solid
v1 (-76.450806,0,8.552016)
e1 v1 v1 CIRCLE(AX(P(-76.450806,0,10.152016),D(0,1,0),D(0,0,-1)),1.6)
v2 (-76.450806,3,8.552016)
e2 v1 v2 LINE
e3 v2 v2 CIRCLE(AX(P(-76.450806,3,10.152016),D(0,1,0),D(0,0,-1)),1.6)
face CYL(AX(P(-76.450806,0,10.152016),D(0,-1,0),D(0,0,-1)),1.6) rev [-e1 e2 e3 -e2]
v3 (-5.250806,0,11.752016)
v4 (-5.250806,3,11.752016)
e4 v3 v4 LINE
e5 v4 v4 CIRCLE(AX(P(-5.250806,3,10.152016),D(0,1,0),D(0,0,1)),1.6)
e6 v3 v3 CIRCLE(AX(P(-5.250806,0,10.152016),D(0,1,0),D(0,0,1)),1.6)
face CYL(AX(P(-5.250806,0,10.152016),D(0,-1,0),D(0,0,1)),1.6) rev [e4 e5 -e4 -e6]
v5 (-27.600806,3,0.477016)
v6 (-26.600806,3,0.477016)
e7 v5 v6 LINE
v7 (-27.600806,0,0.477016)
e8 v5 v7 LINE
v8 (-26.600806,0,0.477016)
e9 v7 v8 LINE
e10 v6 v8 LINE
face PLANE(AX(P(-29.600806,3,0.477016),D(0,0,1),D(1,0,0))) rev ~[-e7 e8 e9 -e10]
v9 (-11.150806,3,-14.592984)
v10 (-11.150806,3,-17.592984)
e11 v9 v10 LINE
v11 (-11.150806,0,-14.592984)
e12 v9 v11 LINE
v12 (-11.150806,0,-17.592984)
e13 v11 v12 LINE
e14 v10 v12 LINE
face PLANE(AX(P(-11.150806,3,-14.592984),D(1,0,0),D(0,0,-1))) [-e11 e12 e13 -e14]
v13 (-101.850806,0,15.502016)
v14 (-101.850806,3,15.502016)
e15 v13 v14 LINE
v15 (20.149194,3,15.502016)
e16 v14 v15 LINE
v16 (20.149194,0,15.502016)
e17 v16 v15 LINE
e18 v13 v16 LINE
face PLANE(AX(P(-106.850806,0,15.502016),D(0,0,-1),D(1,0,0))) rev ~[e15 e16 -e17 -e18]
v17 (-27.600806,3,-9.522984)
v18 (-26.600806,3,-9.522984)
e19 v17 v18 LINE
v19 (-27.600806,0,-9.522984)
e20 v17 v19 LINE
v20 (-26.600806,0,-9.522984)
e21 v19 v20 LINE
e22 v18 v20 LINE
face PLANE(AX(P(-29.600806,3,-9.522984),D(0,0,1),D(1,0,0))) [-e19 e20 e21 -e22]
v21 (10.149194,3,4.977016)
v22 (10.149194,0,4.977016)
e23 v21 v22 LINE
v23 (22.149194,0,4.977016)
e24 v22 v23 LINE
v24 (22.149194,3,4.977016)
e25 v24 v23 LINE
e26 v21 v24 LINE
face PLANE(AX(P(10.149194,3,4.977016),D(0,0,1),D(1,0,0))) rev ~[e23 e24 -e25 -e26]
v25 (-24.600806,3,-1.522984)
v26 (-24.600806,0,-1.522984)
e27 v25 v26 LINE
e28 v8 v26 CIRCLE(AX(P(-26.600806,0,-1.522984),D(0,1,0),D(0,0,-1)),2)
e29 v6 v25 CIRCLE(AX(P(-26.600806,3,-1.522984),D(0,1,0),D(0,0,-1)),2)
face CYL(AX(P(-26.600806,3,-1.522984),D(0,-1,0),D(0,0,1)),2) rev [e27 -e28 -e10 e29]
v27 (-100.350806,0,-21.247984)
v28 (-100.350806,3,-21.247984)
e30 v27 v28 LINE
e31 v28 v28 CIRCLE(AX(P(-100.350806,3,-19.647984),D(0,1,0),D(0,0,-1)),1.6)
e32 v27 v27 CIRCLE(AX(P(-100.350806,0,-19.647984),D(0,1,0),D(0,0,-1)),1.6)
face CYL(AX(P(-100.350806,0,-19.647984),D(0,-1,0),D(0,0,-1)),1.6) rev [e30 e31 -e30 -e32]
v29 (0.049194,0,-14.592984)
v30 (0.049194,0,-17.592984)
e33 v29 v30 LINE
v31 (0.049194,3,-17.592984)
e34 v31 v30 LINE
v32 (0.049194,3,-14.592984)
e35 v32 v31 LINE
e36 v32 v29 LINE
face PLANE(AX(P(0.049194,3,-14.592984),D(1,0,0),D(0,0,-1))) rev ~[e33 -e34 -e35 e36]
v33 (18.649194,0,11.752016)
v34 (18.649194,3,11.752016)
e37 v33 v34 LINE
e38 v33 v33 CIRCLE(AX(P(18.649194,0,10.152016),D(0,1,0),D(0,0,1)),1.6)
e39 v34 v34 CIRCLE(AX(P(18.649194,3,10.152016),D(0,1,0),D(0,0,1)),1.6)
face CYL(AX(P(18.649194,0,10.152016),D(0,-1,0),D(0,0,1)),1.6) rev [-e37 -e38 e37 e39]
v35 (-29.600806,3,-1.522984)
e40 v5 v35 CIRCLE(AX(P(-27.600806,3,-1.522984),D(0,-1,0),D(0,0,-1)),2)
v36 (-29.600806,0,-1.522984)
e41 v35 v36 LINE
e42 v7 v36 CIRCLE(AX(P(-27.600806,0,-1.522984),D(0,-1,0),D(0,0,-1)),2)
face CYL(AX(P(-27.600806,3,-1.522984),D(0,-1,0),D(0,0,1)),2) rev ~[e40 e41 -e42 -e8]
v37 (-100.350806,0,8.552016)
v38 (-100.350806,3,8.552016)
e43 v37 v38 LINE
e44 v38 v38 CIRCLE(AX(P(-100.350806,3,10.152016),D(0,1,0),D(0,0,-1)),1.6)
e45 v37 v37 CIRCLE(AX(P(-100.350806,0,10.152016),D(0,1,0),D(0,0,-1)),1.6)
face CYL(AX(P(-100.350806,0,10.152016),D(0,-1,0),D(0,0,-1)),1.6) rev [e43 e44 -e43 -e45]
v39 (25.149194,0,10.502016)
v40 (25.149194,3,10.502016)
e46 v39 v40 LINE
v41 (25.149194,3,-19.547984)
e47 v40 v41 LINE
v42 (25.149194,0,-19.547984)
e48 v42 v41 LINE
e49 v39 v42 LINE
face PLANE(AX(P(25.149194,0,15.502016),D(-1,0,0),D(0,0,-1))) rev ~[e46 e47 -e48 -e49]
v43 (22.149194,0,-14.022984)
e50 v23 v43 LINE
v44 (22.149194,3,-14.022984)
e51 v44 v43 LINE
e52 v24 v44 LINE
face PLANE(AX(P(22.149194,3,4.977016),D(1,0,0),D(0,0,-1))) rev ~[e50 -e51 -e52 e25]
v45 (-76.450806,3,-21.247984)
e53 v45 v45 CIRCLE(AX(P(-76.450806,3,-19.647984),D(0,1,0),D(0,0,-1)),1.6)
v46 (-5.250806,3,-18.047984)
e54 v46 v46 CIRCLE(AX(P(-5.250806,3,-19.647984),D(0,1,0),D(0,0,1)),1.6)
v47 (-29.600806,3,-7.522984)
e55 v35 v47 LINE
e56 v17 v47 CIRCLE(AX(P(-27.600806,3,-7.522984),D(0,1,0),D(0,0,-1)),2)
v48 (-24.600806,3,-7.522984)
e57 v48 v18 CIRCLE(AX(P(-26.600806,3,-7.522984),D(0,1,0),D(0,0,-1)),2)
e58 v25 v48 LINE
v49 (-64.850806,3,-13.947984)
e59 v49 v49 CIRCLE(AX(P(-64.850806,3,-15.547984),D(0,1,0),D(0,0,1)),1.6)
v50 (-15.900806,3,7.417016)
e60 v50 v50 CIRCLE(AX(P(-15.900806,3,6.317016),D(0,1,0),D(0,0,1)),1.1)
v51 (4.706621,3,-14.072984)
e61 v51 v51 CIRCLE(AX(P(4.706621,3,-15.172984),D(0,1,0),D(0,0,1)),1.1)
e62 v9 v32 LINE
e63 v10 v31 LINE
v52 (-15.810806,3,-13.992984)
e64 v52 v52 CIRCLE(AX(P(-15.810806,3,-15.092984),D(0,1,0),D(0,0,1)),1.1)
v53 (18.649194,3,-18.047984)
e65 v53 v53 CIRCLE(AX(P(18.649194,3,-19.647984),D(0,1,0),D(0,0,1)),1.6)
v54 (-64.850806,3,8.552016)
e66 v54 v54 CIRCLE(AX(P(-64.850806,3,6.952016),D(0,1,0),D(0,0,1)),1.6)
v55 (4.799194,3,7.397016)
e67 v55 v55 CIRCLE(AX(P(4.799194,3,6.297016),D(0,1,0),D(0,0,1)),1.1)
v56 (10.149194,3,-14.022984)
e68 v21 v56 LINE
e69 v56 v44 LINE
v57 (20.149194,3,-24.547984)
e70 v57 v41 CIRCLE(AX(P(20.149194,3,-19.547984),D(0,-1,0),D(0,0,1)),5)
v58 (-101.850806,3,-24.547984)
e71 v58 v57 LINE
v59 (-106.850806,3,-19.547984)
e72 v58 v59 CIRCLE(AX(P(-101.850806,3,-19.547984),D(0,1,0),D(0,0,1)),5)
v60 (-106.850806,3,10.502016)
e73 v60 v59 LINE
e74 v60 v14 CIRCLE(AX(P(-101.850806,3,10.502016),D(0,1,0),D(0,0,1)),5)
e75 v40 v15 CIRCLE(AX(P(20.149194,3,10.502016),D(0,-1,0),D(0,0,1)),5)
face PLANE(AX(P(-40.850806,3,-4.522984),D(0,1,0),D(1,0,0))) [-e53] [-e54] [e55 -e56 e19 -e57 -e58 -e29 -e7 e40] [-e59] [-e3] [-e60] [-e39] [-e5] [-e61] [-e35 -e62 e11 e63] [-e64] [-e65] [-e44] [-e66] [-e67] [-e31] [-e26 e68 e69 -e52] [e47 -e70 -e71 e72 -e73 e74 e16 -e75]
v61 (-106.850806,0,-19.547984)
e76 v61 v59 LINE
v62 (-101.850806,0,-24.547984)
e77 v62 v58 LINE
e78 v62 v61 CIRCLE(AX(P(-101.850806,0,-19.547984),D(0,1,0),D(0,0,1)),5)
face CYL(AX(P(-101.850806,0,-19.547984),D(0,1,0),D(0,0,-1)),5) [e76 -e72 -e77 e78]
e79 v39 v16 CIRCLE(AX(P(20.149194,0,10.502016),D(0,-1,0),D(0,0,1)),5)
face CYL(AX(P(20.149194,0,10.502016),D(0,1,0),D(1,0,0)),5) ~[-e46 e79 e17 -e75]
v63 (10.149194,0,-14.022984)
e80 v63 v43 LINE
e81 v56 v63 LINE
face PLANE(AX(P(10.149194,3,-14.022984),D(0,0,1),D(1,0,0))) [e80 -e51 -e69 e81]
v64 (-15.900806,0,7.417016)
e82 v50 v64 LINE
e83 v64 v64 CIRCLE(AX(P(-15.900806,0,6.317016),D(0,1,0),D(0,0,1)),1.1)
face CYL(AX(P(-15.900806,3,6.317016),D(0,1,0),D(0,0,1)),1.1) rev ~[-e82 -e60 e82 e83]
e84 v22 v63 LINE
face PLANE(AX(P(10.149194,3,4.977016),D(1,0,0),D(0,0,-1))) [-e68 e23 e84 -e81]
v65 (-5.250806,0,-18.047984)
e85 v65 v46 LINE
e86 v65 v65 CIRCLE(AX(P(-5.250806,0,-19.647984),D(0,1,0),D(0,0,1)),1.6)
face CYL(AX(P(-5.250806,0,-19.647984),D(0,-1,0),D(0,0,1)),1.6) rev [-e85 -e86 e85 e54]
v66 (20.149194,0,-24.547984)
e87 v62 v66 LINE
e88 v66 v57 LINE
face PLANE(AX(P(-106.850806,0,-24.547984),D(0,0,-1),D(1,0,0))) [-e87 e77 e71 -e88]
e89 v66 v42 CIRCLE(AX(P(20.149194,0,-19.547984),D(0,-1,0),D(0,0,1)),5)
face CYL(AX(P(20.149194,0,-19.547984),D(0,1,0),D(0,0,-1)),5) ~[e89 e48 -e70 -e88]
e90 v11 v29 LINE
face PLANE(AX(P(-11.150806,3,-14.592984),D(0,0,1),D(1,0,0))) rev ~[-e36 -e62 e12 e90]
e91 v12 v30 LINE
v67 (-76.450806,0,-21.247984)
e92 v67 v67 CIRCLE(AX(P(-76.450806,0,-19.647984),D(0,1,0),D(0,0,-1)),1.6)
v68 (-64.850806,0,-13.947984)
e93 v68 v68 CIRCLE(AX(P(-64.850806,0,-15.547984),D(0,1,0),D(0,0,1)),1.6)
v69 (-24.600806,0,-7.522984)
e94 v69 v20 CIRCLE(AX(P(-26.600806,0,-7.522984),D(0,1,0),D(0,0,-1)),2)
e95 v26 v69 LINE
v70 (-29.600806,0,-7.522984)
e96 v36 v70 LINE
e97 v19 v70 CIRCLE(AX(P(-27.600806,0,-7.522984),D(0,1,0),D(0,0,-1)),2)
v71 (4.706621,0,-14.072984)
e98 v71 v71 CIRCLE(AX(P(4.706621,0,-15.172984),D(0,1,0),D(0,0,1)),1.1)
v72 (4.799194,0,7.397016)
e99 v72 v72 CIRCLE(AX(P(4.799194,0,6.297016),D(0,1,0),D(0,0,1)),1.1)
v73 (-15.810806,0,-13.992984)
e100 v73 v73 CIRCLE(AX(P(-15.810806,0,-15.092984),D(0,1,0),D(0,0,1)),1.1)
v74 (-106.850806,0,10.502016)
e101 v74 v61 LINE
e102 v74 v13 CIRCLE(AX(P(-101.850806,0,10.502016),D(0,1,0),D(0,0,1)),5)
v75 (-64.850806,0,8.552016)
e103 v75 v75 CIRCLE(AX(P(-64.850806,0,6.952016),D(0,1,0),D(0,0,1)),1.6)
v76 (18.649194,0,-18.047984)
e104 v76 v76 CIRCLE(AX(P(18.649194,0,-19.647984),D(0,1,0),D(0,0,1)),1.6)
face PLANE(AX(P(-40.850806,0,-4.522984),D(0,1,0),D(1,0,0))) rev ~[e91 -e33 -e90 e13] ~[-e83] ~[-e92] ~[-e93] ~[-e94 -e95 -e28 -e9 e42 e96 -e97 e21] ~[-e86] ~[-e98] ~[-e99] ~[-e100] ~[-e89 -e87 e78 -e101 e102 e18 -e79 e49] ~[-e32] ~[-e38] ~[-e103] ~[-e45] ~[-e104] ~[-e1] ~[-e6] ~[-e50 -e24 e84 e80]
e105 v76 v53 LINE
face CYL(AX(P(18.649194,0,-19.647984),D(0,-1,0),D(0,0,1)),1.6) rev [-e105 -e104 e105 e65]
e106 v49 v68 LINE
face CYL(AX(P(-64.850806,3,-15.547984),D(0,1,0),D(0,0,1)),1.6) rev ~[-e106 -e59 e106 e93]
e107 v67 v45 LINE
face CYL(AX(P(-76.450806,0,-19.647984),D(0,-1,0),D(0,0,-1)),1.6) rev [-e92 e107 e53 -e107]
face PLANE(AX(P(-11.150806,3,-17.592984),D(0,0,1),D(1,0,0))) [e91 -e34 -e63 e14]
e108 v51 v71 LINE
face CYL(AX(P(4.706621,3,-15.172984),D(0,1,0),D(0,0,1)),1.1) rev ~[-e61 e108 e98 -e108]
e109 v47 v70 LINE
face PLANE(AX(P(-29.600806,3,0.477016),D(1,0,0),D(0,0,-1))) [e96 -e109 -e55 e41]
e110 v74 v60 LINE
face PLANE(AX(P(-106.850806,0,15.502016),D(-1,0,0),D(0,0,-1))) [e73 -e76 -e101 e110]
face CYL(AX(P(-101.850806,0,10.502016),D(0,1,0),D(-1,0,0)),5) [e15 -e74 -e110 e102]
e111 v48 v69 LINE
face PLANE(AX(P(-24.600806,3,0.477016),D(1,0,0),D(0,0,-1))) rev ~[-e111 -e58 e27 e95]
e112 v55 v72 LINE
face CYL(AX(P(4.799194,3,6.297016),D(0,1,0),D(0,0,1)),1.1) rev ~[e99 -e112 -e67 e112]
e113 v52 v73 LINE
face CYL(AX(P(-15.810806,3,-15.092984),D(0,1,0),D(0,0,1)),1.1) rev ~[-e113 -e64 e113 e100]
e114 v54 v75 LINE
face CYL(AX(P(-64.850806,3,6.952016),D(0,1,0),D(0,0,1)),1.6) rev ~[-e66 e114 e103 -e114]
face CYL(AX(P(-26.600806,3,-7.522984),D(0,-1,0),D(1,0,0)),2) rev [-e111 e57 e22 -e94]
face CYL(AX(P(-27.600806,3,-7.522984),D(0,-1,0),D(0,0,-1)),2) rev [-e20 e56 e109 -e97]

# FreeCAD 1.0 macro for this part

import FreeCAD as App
import Part
import Sketcher


def edges_at(feature, points):
    """Names of the edges that pass closest to the given points."""
    edges = feature.Shape.Edges
    near = lambda p: min(range(len(edges)), key=lambda i: edges[i].distToShape(Part.Vertex(*p))[0])
    return sorted({f"Edge{near(p) + 1}" for p in points})


def add_polygon(sketch, points):
    """Adds a closed chain of lines whose ends are joined by coincident constraints."""
    first, n = sketch.GeometryCount, len(points)
    for a, b in zip(points, points[1:] + points[:1]):
        sketch.addGeometry(Part.LineSegment(App.Vector(*a, 0), App.Vector(*b, 0)), False)
    for i in range(n):
        sketch.addConstraint(Sketcher.Constraint("Coincident", first + i, 2, first + (i + 1) % n, 1))

doc = App.newDocument("Part")
body = doc.addObject("PartDesign::Body", "Body")

# Sketch on XZ plane
sketch1 = doc.addObject("Sketcher::SketchObject", "Sketch")
body.addObject(sketch1)
sketch1.AttachmentSupport = (doc.XZ_Plane, [""])
sketch1.MapMode = "FlatFace"
add_polygon(sketch1, [(-106.850806, -24.547984), (-106.850806, 15.502016), (25.149194, 15.502016), (25.149194, -24.547984)])  # lines 0-3
sketch1.addGeometry(Part.Circle(App.Vector(-100.350806, 10.152016, 0), App.Vector(0, 0, 1), 1.6), False)  # 4
sketch1.addGeometry(Part.Circle(App.Vector(-76.450806, 10.152016, 0), App.Vector(0, 0, 1), 1.6), False)  # 5
sketch1.addGeometry(Part.Circle(App.Vector(-5.250806, 10.152016, 0), App.Vector(0, 0, 1), 1.6), False)  # 6
sketch1.addGeometry(Part.Circle(App.Vector(18.649194, 10.152016, 0), App.Vector(0, 0, 1), 1.6), False)  # 7
sketch1.addGeometry(Part.Circle(App.Vector(-100.350806, -19.647984, 0), App.Vector(0, 0, 1), 1.6), False)  # 8
sketch1.addGeometry(Part.Circle(App.Vector(-76.450806, -19.647984, 0), App.Vector(0, 0, 1), 1.6), False)  # 9
sketch1.addGeometry(Part.Circle(App.Vector(-5.250806, -19.647984, 0), App.Vector(0, 0, 1), 1.6), False)  # 10
sketch1.addGeometry(Part.Circle(App.Vector(18.649194, -19.647984, 0), App.Vector(0, 0, 1), 1.6), False)  # 11
sketch1.addConstraint([
    Sketcher.Constraint("Vertical", 0),
    Sketcher.Constraint("Horizontal", 1),
    Sketcher.Constraint("Vertical", 2),
    Sketcher.Constraint("Horizontal", 3),
    Sketcher.Constraint("Equal", 4, 5),
    Sketcher.Constraint("Equal", 5, 6),
    Sketcher.Constraint("Equal", 6, 7),
    Sketcher.Constraint("Equal", 7, 8),
    Sketcher.Constraint("Equal", 8, 9),
    Sketcher.Constraint("Equal", 9, 10),
    Sketcher.Constraint("Equal", 10, 11),
    Sketcher.Constraint("Horizontal", 4, 3, 5, 3),
    Sketcher.Constraint("Horizontal", 5, 3, 6, 3),
    Sketcher.Constraint("Horizontal", 6, 3, 7, 3),
    Sketcher.Constraint("Horizontal", 8, 3, 9, 3),
    Sketcher.Constraint("Horizontal", 9, 3, 10, 3),
    Sketcher.Constraint("Horizontal", 10, 3, 11, 3),
    Sketcher.Constraint("Vertical", 4, 3, 8, 3),
    Sketcher.Constraint("Vertical", 5, 3, 9, 3),
    Sketcher.Constraint("Vertical", 6, 3, 10, 3),
    Sketcher.Constraint("Vertical", 7, 3, 11, 3),
    Sketcher.Constraint("Diameter", 4, 3.2),
    Sketcher.Constraint("DistanceX", 1, 1, 1, 2, 132.0),
    Sketcher.Constraint("DistanceX", 4, 3, 7, 3, 119.0),
    Sketcher.Constraint("DistanceY", 0, 1, 0, 2, 40.05),
    Sketcher.Constraint("DistanceX", 4, 3, 5, 3, 23.9),
    Sketcher.Constraint("DistanceX", 5, 3, 6, 3, 71.2),
    Sketcher.Constraint("DistanceY", 8, 3, 4, 3, 29.8),
    Sketcher.Constraint("DistanceX", 0, 2, 4, 3, 6.5),
    Sketcher.Constraint("DistanceY", 2, 2, 11, 3, 4.9),
    Sketcher.Constraint("DistanceX", 4, 3, -1, 1, 100.350806),
    Sketcher.Constraint("DistanceY", -1, 1, 4, 3, 10.152016),
])
pad1 = doc.addObject("PartDesign::Pad", "Pad")
body.addObject(pad1)
pad1.Profile = sketch1
pad1.Length = 3
pad1.Reversed = True
doc.recompute()

fillet = doc.addObject("PartDesign::Fillet", "Fillet")
body.addObject(fillet)
fillet.Base = (pad1, edges_at(pad1, [(25.149, 1.5, -24.548)]))
fillet.Radius = 5
doc.recompute()

fillet2 = doc.addObject("PartDesign::Fillet", "Fillet001")
body.addObject(fillet2)
fillet2.Base = (fillet, edges_at(fillet, [(25.149, 1.5, 15.502), (-106.851, 1.5, 15.502), (-106.851, 1.5, -24.548)]))
fillet2.Radius = 5

# Sketch on XZ plane
sketch2 = doc.addObject("Sketcher::SketchObject", "Sketch001")
body.addObject(sketch2)
sketch2.AttachmentSupport = (doc.XZ_Plane, [""])
sketch2.MapMode = "FlatFace"
sketch2.AttachmentOffset = App.Placement(App.Vector(0, 0, -3), App.Rotation())
sketch2.addGeometry(Part.Circle(App.Vector(4.706621, -15.172984, 0), App.Vector(0, 0, 1), 1.1), False)  # 0
sketch2.addGeometry(Part.Circle(App.Vector(4.799194, 6.297016, 0), App.Vector(0, 0, 1), 1.1), False)  # 1
sketch2.addGeometry(Part.Circle(App.Vector(-15.810806, -15.092984, 0), App.Vector(0, 0, 1), 1.1), False)  # 2
sketch2.addGeometry(Part.Circle(App.Vector(-15.900806, 6.317016, 0), App.Vector(0, 0, 1), 1.1), False)  # 3
add_polygon(sketch2, [(10.149194, -14.022984), (10.149194, 4.977016), (22.149194, 4.977016), (22.149194, -14.022984)])  # lines 4-7
add_polygon(sketch2, [(-11.150806, -17.592984), (-11.150806, -14.592984), (0.049194, -14.592984), (0.049194, -17.592984)])  # lines 8-11
sketch2.addConstraint([
    Sketcher.Constraint("Vertical", 4),
    Sketcher.Constraint("Horizontal", 5),
    Sketcher.Constraint("Vertical", 6),
    Sketcher.Constraint("Horizontal", 7),
    Sketcher.Constraint("Vertical", 8),
    Sketcher.Constraint("Horizontal", 9),
    Sketcher.Constraint("Vertical", 10),
    Sketcher.Constraint("Horizontal", 11),
    Sketcher.Constraint("Equal", 0, 1),
    Sketcher.Constraint("Equal", 1, 2),
    Sketcher.Constraint("Equal", 2, 3),
    Sketcher.Constraint("Diameter", 0, 2.2),
    Sketcher.Constraint("DistanceX", 5, 1, 5, 2, 12.0),
    Sketcher.Constraint("DistanceY", 4, 1, 4, 2, 19.0),
    Sketcher.Constraint("DistanceY", 8, 1, 8, 2, 3.0),
    Sketcher.Constraint("DistanceX", 9, 1, 9, 2, 11.2),
    Sketcher.Constraint("DistanceX", 3, 3, 1, 3, 20.7),
    Sketcher.Constraint("DistanceY", 2, 3, 8, 2, 0.5),
    Sketcher.Constraint("DistanceX", 8, 2, 7, 2, 21.3),
    Sketcher.Constraint("DistanceY", 0, 3, 1, 3, 21.47),
    Sketcher.Constraint("DistanceY", 0, 3, 2, 3, 0.08),
    Sketcher.Constraint("DistanceX", 2, 3, 1, 3, 20.61),
    Sketcher.Constraint("DistanceY", 1, 3, 3, 3, 0.02),
    Sketcher.Constraint("DistanceX", 1, 3, 4, 2, 5.35),
    Sketcher.Constraint("DistanceY", 4, 2, 1, 3, 1.32),
    Sketcher.Constraint("DistanceX", -1, 1, 0, 3, 4.706621),
    Sketcher.Constraint("DistanceY", 0, 3, -1, 1, 15.172984),
    Sketcher.Constraint("DistanceX", -1, 1, 1, 3, 4.799194),
])
pocket1 = doc.addObject("PartDesign::Pocket", "Pocket")
body.addObject(pocket1)
pocket1.Profile = sketch2
pocket1.Length = 10
pocket1.Reversed = True

# Sketch on XZ plane
sketch3 = doc.addObject("Sketcher::SketchObject", "Sketch002")
body.addObject(sketch3)
sketch3.AttachmentSupport = (doc.XZ_Plane, [""])
sketch3.MapMode = "FlatFace"
sketch3.AttachmentOffset = App.Placement(App.Vector(0, 0, -3), App.Rotation())
sketch3.addGeometry(Part.Circle(App.Vector(-64.850806, -15.547984, 0), App.Vector(0, 0, 1), 1.6), False)  # 0
sketch3.addGeometry(Part.Circle(App.Vector(-64.850806, 6.952016, 0), App.Vector(0, 0, 1), 1.6), False)  # 1
add_polygon(sketch3, [(-29.600806, -9.522984), (-29.600806, 0.477016), (-24.600806, 0.477016), (-24.600806, -9.522984)])  # lines 2-5
sketch3.addConstraint([
    Sketcher.Constraint("Vertical", 2),
    Sketcher.Constraint("Horizontal", 3),
    Sketcher.Constraint("Vertical", 4),
    Sketcher.Constraint("Horizontal", 5),
    Sketcher.Constraint("Equal", 0, 1),
    Sketcher.Constraint("Vertical", 0, 3, 1, 3),
    Sketcher.Constraint("Diameter", 0, 3.2),
    Sketcher.Constraint("DistanceX", 3, 1, 3, 2, 5.0),
    Sketcher.Constraint("DistanceY", 2, 1, 2, 2, 10.0),
    Sketcher.Constraint("DistanceY", 0, 3, 1, 3, 22.5),
    Sketcher.Constraint("DistanceX", 1, 3, 2, 2, 35.25),
    Sketcher.Constraint("DistanceY", 2, 2, 1, 3, 6.475),
    Sketcher.Constraint("DistanceX", 0, 3, -1, 1, 64.850806),
    Sketcher.Constraint("DistanceY", 0, 3, -1, 1, 15.547984),
])
pocket2 = doc.addObject("PartDesign::Pocket", "Pocket001")
body.addObject(pocket2)
pocket2.Profile = sketch3
pocket2.Length = 10
pocket2.Reversed = True
doc.recompute()

fillet3 = doc.addObject("PartDesign::Fillet", "Fillet002")
body.addObject(fillet3)
fillet3.Base = (pocket2, edges_at(pocket2, [
    (-24.601, 1.5, 0.477),
    (-29.601, 1.5, 0.477),
    (-29.601, 1.5, -9.523),
    (-24.601, 1.5, -9.523),
]))
fillet3.Radius = 2

doc.recompute()
